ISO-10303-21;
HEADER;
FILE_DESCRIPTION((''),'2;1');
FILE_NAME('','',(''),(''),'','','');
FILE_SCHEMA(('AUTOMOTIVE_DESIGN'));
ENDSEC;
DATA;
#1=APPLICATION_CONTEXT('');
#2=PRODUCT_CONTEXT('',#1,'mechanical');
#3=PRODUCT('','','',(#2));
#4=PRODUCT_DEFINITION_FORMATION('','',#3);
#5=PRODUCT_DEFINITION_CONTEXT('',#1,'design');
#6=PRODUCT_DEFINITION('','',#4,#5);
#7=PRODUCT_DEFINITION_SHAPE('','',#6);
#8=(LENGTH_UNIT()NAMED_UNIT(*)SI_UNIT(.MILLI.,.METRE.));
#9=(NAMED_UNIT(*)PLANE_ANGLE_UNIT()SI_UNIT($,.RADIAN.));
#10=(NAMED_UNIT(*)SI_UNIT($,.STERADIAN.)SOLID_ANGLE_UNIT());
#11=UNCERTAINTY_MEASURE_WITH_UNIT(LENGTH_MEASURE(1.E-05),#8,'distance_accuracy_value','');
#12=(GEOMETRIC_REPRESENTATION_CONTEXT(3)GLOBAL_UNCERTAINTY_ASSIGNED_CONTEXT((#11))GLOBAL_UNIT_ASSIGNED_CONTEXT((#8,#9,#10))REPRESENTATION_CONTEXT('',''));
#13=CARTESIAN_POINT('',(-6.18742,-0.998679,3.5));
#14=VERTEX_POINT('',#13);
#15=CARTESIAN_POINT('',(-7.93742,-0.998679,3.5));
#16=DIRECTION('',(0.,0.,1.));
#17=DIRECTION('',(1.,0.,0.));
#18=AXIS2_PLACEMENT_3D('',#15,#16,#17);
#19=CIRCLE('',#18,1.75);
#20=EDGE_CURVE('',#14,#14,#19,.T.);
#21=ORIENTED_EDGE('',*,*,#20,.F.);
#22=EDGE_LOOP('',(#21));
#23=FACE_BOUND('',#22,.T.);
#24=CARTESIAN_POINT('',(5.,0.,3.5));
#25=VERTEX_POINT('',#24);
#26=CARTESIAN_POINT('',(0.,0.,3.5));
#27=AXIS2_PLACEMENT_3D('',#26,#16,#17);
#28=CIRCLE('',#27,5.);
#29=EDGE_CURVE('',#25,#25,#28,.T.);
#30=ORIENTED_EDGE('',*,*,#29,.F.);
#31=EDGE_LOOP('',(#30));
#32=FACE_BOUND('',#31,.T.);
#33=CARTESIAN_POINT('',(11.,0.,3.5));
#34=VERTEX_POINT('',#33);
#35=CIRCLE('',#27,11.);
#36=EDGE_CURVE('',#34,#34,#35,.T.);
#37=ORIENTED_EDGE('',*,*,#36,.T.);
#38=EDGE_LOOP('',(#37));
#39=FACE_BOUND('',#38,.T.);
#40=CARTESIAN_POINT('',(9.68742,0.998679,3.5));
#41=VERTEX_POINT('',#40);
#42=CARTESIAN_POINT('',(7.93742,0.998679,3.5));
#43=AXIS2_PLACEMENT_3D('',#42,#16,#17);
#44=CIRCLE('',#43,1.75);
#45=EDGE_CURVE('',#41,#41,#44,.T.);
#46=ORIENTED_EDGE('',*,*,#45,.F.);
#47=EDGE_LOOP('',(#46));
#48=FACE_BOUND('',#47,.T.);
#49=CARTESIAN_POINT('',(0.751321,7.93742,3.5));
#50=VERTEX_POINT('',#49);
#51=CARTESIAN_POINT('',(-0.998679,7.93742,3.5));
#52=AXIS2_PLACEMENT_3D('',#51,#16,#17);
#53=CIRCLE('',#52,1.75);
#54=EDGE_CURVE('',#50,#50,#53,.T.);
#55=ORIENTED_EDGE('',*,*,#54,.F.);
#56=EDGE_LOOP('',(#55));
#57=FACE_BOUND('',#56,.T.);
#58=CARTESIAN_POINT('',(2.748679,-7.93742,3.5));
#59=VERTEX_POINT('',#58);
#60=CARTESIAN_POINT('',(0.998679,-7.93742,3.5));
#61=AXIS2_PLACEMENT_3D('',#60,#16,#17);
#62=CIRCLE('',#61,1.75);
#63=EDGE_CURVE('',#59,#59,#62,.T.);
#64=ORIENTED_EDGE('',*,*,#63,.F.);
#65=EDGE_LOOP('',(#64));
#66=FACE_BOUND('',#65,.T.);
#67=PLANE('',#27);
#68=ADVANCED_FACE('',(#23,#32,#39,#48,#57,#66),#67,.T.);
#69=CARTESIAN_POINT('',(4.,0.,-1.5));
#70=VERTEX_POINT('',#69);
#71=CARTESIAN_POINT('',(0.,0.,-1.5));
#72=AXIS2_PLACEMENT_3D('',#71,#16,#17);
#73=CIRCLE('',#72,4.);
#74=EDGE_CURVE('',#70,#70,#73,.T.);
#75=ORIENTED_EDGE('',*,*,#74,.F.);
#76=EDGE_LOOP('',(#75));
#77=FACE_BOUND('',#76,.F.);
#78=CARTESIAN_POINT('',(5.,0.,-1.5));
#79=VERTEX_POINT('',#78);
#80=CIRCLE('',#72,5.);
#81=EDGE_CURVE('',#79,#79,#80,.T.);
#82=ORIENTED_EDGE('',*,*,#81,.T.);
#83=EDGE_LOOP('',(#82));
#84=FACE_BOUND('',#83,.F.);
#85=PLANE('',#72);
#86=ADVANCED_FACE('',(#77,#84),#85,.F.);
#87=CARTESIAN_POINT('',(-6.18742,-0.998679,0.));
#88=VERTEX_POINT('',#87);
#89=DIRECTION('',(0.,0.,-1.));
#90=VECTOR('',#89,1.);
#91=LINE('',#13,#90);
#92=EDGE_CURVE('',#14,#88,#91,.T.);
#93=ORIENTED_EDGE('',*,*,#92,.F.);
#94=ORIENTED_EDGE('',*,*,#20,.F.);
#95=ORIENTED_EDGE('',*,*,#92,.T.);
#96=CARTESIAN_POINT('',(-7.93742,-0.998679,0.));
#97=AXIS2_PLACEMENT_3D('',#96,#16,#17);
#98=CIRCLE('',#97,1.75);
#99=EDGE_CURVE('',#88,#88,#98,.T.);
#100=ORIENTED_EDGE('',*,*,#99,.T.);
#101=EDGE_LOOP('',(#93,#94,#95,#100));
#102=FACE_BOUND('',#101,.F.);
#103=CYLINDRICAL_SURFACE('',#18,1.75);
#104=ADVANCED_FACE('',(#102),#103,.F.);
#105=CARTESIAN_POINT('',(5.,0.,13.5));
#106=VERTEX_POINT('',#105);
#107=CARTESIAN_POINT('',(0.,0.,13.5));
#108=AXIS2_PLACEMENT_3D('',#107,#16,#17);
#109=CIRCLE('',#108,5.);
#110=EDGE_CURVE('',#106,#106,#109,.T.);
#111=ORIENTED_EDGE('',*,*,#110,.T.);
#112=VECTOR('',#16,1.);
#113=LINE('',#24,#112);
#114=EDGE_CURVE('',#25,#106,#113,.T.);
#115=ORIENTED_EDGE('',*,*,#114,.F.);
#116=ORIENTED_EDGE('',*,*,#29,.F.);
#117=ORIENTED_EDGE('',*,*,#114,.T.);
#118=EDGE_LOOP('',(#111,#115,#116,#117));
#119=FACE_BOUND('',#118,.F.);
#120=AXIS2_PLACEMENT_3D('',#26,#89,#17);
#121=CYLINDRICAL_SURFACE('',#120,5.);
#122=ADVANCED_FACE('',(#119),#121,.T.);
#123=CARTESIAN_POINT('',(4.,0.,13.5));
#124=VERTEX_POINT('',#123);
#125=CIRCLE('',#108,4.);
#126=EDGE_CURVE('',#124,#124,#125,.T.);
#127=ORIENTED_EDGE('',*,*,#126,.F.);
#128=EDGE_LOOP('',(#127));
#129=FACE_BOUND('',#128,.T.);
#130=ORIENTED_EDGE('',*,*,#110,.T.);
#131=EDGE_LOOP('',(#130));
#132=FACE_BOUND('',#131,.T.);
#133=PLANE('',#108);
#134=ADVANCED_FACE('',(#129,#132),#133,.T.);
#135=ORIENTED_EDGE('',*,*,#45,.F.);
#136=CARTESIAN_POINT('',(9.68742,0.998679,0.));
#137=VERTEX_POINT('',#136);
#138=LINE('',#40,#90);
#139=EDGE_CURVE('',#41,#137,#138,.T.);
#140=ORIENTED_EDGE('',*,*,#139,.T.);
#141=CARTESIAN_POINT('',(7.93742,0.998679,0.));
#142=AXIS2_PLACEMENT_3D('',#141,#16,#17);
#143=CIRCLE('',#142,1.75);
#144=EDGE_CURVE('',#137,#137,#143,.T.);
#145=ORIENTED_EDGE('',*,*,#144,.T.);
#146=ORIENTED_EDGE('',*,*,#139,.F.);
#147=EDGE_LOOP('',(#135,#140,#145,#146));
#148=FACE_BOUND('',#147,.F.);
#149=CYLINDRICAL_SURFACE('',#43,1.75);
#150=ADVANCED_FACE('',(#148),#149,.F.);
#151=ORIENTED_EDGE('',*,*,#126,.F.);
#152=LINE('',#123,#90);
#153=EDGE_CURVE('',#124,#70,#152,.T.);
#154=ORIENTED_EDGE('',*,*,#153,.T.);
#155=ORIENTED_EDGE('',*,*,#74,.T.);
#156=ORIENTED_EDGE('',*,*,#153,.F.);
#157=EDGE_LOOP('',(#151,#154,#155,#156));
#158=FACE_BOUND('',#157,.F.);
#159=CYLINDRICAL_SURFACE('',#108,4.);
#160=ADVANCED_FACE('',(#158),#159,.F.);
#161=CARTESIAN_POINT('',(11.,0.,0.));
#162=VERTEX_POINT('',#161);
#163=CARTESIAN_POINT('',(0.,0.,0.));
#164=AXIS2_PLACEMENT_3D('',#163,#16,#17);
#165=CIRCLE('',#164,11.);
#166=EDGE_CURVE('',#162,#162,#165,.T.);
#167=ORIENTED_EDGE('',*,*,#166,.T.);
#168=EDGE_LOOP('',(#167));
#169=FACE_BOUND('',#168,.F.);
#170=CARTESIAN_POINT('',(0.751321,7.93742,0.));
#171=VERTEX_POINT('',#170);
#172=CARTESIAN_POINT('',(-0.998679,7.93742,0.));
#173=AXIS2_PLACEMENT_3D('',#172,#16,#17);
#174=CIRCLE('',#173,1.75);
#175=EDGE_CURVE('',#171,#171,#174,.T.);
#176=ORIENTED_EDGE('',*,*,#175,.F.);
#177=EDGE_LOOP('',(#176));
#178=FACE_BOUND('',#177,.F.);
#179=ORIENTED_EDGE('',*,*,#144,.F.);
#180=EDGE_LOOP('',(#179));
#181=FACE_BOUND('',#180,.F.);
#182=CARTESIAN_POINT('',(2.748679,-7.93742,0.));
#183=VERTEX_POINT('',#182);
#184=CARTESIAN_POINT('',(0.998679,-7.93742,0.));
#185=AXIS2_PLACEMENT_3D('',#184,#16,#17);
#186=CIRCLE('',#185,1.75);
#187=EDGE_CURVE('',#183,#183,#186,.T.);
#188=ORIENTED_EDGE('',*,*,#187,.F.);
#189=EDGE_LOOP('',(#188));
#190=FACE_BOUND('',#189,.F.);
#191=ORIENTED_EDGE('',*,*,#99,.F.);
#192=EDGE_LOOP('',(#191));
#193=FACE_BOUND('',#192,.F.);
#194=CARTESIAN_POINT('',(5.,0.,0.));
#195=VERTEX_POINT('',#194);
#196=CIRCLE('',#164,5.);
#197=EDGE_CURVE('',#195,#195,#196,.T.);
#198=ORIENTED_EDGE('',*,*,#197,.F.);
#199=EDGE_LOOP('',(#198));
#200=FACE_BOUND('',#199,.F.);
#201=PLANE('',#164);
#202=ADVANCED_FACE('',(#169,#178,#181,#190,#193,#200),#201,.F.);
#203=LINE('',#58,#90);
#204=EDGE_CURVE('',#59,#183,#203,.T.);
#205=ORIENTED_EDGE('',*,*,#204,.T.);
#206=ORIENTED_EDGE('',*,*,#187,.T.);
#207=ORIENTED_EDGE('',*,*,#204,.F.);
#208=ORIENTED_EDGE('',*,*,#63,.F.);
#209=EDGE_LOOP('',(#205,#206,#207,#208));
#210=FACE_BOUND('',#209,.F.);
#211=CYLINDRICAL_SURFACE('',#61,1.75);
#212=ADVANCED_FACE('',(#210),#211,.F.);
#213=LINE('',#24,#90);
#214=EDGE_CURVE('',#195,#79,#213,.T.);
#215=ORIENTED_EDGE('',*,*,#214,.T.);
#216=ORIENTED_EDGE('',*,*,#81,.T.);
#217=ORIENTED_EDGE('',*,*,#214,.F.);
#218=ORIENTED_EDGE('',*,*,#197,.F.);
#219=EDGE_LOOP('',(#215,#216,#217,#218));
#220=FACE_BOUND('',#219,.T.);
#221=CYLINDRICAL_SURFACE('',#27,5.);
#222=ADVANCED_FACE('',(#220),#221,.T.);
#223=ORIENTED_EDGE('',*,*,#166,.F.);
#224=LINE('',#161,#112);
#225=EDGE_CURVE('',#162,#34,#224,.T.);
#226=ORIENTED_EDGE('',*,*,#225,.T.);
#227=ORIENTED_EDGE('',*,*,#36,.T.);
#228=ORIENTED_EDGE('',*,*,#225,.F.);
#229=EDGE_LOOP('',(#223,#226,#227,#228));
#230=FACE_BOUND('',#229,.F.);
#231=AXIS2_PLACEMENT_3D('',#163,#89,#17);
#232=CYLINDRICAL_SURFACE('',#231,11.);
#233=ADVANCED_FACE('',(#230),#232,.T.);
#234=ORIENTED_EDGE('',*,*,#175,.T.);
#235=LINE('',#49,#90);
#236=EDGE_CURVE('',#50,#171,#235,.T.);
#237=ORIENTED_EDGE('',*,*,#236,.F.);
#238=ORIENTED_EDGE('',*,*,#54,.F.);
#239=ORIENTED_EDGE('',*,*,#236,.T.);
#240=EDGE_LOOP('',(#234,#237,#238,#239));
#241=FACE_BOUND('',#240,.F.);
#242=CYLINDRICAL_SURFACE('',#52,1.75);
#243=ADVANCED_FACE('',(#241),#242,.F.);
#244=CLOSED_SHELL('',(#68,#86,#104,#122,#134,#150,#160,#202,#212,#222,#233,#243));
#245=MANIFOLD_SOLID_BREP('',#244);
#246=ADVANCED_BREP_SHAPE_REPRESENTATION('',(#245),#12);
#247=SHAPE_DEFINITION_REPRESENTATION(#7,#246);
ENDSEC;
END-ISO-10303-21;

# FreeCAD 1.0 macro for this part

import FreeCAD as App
import Part
import Sketcher

doc = App.newDocument("Part")
body = doc.addObject("PartDesign::Body", "Body")

sketch1 = doc.addObject("Sketcher::SketchObject", "Sketch")
body.addObject(sketch1)
sketch1.AttachmentSupport = (doc.XY_Plane, [""])
sketch1.MapMode = "FlatFace"
sketch1.addGeometry(Part.Circle(App.Vector(0, 0, 0), App.Vector(0, 0, 1), 11), False)
sketch1.addConstraint(Sketcher.Constraint("Coincident", 0, 3, -1, 1))
sketch1.addConstraint(Sketcher.Constraint("Diameter", 0, 22.0))
pad1 = doc.addObject("PartDesign::Pad", "Pad")
body.addObject(pad1)
pad1.Profile = sketch1
pad1.Length = 3.5

sketch2 = doc.addObject("Sketcher::SketchObject", "Sketch001")
body.addObject(sketch2)
sketch2.AttachmentSupport = (doc.XY_Plane, [""])
sketch2.MapMode = "FlatFace"
sketch2.AttachmentOffset = App.Placement(App.Vector(0, 0, 3.5), App.Rotation())
sketch2.addGeometry(Part.Circle(App.Vector(0, 0, 0), App.Vector(0, 0, 1), 5), False)
sketch2.addConstraint(Sketcher.Constraint("Coincident", 0, 3, -1, 1))
sketch2.addConstraint(Sketcher.Constraint("Diameter", 0, 10.0))
pad2 = doc.addObject("PartDesign::Pad", "Pad001")
body.addObject(pad2)
pad2.Profile = sketch2
pad2.Type = "TwoLengths"
pad2.Length = 10
pad2.Length2 = 5

sketch3 = doc.addObject("Sketcher::SketchObject", "Sketch002")
body.addObject(sketch3)
sketch3.AttachmentSupport = (doc.XY_Plane, [""])
sketch3.MapMode = "FlatFace"
sketch3.AttachmentOffset = App.Placement(App.Vector(0, 0, 13.5), App.Rotation())
sketch3.addGeometry(Part.Circle(App.Vector(0, 0, 0), App.Vector(0, 0, 1), 4), False)
sketch3.addConstraint(Sketcher.Constraint("Coincident", 0, 3, -1, 1))
sketch3.addConstraint(Sketcher.Constraint("Diameter", 0, 8.0))
pocket1 = doc.addObject("PartDesign::Pocket", "Pocket")
body.addObject(pocket1)
pocket1.Profile = sketch3
pocket1.Type = "ThroughAll"

sketch4 = doc.addObject("Sketcher::SketchObject", "Sketch003")
body.addObject(sketch4)
sketch4.AttachmentSupport = (doc.XY_Plane, [""])
sketch4.MapMode = "FlatFace"
sketch4.AttachmentOffset = App.Placement(App.Vector(0, 0, 3.5), App.Rotation())
sketch4.addGeometry(Part.Circle(App.Vector(-1, 7.9, 0), App.Vector(0, 0, 1), 1.8), False)
sketch4.addGeometry(Part.Circle(App.Vector(7.9, 1, 0), App.Vector(0, 0, 1), 1.8), False)
sketch4.addGeometry(Part.Circle(App.Vector(1, -7.9, 0), App.Vector(0, 0, 1), 1.8), False)
sketch4.addGeometry(Part.Circle(App.Vector(-7.9, -1, 0), App.Vector(0, 0, 1), 1.8), False)
sketch4.addConstraint(Sketcher.Constraint("Equal", 0, 1))
sketch4.addConstraint(Sketcher.Constraint("Equal", 1, 2))
sketch4.addConstraint(Sketcher.Constraint("Equal", 2, 3))
sketch4.addConstraint(Sketcher.Constraint("Symmetric", 0, 3, 2, 3, -1, 1))
sketch4.addConstraint(Sketcher.Constraint("Symmetric", 1, 3, 3, 3, -1, 1))
sketch4.addConstraint(Sketcher.Constraint("Diameter", 0, 3.5))
sketch4.addConstraint(Sketcher.Constraint("DistanceX", 0, 3, 1, 3, 8.9361))
sketch4.addConstraint(Sketcher.Constraint("DistanceY", 2, 3, 1, 3, 8.9361))
sketch4.addConstraint(Sketcher.Constraint("DistanceX", 0, 3, -1, 1, 0.998679))
sketch4.addConstraint(Sketcher.Constraint("DistanceY", -1, 1, 0, 3, 7.93742))
pocket2 = doc.addObject("PartDesign::Pocket", "Pocket001")
body.addObject(pocket2)
pocket2.Profile = sketch4
pocket2.Type = "ThroughAll"

doc.recompute()
